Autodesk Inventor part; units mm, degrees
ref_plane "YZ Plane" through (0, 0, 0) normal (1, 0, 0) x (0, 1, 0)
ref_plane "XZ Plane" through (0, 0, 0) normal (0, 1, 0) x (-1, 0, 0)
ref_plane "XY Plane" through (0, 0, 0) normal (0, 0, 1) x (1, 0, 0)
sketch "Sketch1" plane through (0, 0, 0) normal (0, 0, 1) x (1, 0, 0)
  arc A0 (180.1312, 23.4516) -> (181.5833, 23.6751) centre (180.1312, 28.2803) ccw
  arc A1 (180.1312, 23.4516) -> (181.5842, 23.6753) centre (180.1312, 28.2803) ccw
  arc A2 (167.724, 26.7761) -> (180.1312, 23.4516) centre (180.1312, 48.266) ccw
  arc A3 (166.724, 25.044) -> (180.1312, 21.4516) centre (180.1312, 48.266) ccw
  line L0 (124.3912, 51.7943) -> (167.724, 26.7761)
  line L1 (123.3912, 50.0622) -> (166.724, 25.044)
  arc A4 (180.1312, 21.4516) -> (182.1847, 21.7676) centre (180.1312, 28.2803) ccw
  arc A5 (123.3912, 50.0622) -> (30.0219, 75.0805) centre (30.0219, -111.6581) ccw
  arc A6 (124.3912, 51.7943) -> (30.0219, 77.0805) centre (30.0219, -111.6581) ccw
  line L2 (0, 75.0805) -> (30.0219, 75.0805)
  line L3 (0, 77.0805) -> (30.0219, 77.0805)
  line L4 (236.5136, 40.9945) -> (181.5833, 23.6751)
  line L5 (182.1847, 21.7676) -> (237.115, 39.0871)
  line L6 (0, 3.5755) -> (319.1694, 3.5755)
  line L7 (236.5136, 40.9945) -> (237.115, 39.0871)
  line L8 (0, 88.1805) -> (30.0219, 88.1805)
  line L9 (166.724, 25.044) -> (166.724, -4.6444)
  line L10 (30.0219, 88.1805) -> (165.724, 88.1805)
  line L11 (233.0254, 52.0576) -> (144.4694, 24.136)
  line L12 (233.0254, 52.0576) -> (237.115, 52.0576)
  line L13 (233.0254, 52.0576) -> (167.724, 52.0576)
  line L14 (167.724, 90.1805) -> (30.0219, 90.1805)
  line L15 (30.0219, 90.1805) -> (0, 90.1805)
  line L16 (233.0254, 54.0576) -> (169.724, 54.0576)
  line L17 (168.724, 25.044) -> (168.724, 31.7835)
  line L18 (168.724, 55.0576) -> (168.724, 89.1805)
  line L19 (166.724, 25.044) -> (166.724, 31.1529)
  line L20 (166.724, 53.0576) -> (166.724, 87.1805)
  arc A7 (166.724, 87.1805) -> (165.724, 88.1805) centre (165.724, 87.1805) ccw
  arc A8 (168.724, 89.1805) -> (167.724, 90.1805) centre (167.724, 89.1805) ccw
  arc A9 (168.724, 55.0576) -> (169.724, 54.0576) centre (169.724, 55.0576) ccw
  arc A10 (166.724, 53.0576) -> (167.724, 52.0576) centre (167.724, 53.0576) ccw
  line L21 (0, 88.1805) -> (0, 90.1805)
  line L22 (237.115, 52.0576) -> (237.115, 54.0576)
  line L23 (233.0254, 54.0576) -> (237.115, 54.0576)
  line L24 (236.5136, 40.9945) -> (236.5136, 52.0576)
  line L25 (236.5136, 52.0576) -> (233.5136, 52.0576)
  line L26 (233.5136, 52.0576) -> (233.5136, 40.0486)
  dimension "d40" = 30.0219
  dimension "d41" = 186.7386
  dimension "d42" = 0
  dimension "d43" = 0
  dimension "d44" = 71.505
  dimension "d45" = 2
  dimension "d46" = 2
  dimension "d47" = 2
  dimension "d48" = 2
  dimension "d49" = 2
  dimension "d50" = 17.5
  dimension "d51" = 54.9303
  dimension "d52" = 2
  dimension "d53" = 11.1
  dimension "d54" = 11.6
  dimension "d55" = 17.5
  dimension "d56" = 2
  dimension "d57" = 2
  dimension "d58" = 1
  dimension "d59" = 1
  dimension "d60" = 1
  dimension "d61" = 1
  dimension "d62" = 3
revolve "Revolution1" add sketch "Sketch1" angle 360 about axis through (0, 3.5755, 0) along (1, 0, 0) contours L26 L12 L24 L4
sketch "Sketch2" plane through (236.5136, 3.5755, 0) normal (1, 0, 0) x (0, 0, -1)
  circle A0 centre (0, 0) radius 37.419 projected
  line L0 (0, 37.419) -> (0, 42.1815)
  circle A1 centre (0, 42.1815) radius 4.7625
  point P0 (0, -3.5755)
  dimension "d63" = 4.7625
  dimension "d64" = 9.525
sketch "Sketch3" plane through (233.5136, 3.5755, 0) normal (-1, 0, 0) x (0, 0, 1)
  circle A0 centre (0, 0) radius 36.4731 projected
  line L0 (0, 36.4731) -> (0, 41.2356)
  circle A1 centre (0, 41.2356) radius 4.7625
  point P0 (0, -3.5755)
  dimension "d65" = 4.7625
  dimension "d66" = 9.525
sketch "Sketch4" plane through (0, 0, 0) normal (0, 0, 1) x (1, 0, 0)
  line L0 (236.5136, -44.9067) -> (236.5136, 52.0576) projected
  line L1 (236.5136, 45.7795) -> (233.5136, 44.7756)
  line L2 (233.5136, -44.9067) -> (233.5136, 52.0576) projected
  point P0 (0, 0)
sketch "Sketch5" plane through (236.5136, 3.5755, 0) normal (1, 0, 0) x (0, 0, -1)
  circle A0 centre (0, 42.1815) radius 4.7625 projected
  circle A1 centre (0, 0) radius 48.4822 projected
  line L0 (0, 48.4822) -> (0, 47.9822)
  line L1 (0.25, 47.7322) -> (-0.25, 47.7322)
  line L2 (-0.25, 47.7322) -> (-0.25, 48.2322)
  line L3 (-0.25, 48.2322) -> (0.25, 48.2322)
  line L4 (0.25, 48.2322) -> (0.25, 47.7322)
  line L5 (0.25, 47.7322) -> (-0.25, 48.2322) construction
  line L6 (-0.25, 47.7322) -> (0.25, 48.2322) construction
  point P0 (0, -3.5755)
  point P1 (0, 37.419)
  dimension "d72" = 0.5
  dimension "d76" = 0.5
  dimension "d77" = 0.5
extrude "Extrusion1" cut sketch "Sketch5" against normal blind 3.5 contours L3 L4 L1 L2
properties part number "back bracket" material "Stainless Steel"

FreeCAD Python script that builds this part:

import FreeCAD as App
import Part
import Sketcher
Q = App.Units.Quantity


def add_polygon(sketch, points):
    """Adds a closed chain of lines whose ends are joined by coincident constraints."""
    first, n = sketch.GeometryCount, len(points)
    for a, b in zip(points, points[1:] + points[:1]):
        sketch.addGeometry(Part.LineSegment(App.Vector(*a, 0), App.Vector(*b, 0)), False)
    for i in range(n):
        sketch.addConstraint(Sketcher.Constraint("Coincident", first + i, 2, first + (i + 1) % n, 1))

doc = App.newDocument("Part")
body = doc.addObject("PartDesign::Body", "Body")

# Sketch on XY plane
sketch1 = body.newObject("Sketcher::SketchObject", "Sketch")
sketch1.AttachmentSupport = (doc.getObject("XY_Plane"), [""])
sketch1.MapMode = "FlatFace"
add_polygon(sketch1, [(233.5, 52.1), (233.5, 40), (236.5, 41), (236.5, 52.1)])  # lines 0-3
sketch1.addGeometry(Part.LineSegment(App.Vector(233.5, 3.6, 0), App.Vector(236.5, 3.6, 0)), True)  # axis
sketch1.addConstraint([
    Sketcher.Constraint("Vertical", 0),
    Sketcher.Constraint("Vertical", 2),
    Sketcher.Constraint("Horizontal", 3),
    Sketcher.Constraint("Horizontal", 4),
    Sketcher.Constraint("Vertical", 3, 2, 4, 1),
    Sketcher.Constraint("Vertical", 2, 2, 4, 2),
    Sketcher.Constraint("DistanceX", 3, 2, 3, 1, Q("3 mm")),
    Sketcher.Constraint("Angle", 1, Q("17.5 deg")),
    Sketcher.Constraint("DistanceY", 0, 2, 0, 1, Q("12.009 mm")),
    Sketcher.Constraint("DistanceY", 4, 1, 0, 2, Q("36.473 mm")),
    Sketcher.Constraint("DistanceX", -1, 1, 0, 2, Q("233.5136 mm")),
    Sketcher.Constraint("DistanceY", -1, 1, 0, 2, Q("40.0486 mm")),
])
revolution = body.newObject("PartDesign::Revolution", "Revolution")
revolution.Profile = sketch1
revolution.ReferenceAxis = (sketch1, ["Axis0"])
revolution.Angle = 360

# Sketch on YZ plane
sketch2 = body.newObject("Sketcher::SketchObject", "Sketch001")
sketch2.AttachmentSupport = (doc.getObject("YZ_Plane"), [""])
sketch2.MapMode = "FlatFace"
sketch2.AttachmentOffset = App.Placement(App.Vector(0, 0, 236.5136), App.Rotation())
add_polygon(sketch2, [(51.8, -0.2), (51.8, 0.2), (51.3, 0.2), (51.3, -0.2)])  # lines 0-3
sketch2.addConstraint([
    Sketcher.Constraint("Vertical", 0),
    Sketcher.Constraint("Horizontal", 1),
    Sketcher.Constraint("Vertical", 2),
    Sketcher.Constraint("Horizontal", 3),
    Sketcher.Constraint("Equal", 3, 0),
    Sketcher.Constraint("DistanceX", 1, 2, 1, 1, Q("0.5 mm")),
    Sketcher.Constraint("DistanceY", -1, 1, 0, 2, Q("0.25 mm")),
    Sketcher.Constraint("DistanceX", -1, 1, 0, 2, Q("51.8077 mm")),
])
pocket1 = body.newObject("PartDesign::Pocket", "Pocket")
pocket1.Profile = sketch2
pocket1.Length = 3.5

doc.recompute()
